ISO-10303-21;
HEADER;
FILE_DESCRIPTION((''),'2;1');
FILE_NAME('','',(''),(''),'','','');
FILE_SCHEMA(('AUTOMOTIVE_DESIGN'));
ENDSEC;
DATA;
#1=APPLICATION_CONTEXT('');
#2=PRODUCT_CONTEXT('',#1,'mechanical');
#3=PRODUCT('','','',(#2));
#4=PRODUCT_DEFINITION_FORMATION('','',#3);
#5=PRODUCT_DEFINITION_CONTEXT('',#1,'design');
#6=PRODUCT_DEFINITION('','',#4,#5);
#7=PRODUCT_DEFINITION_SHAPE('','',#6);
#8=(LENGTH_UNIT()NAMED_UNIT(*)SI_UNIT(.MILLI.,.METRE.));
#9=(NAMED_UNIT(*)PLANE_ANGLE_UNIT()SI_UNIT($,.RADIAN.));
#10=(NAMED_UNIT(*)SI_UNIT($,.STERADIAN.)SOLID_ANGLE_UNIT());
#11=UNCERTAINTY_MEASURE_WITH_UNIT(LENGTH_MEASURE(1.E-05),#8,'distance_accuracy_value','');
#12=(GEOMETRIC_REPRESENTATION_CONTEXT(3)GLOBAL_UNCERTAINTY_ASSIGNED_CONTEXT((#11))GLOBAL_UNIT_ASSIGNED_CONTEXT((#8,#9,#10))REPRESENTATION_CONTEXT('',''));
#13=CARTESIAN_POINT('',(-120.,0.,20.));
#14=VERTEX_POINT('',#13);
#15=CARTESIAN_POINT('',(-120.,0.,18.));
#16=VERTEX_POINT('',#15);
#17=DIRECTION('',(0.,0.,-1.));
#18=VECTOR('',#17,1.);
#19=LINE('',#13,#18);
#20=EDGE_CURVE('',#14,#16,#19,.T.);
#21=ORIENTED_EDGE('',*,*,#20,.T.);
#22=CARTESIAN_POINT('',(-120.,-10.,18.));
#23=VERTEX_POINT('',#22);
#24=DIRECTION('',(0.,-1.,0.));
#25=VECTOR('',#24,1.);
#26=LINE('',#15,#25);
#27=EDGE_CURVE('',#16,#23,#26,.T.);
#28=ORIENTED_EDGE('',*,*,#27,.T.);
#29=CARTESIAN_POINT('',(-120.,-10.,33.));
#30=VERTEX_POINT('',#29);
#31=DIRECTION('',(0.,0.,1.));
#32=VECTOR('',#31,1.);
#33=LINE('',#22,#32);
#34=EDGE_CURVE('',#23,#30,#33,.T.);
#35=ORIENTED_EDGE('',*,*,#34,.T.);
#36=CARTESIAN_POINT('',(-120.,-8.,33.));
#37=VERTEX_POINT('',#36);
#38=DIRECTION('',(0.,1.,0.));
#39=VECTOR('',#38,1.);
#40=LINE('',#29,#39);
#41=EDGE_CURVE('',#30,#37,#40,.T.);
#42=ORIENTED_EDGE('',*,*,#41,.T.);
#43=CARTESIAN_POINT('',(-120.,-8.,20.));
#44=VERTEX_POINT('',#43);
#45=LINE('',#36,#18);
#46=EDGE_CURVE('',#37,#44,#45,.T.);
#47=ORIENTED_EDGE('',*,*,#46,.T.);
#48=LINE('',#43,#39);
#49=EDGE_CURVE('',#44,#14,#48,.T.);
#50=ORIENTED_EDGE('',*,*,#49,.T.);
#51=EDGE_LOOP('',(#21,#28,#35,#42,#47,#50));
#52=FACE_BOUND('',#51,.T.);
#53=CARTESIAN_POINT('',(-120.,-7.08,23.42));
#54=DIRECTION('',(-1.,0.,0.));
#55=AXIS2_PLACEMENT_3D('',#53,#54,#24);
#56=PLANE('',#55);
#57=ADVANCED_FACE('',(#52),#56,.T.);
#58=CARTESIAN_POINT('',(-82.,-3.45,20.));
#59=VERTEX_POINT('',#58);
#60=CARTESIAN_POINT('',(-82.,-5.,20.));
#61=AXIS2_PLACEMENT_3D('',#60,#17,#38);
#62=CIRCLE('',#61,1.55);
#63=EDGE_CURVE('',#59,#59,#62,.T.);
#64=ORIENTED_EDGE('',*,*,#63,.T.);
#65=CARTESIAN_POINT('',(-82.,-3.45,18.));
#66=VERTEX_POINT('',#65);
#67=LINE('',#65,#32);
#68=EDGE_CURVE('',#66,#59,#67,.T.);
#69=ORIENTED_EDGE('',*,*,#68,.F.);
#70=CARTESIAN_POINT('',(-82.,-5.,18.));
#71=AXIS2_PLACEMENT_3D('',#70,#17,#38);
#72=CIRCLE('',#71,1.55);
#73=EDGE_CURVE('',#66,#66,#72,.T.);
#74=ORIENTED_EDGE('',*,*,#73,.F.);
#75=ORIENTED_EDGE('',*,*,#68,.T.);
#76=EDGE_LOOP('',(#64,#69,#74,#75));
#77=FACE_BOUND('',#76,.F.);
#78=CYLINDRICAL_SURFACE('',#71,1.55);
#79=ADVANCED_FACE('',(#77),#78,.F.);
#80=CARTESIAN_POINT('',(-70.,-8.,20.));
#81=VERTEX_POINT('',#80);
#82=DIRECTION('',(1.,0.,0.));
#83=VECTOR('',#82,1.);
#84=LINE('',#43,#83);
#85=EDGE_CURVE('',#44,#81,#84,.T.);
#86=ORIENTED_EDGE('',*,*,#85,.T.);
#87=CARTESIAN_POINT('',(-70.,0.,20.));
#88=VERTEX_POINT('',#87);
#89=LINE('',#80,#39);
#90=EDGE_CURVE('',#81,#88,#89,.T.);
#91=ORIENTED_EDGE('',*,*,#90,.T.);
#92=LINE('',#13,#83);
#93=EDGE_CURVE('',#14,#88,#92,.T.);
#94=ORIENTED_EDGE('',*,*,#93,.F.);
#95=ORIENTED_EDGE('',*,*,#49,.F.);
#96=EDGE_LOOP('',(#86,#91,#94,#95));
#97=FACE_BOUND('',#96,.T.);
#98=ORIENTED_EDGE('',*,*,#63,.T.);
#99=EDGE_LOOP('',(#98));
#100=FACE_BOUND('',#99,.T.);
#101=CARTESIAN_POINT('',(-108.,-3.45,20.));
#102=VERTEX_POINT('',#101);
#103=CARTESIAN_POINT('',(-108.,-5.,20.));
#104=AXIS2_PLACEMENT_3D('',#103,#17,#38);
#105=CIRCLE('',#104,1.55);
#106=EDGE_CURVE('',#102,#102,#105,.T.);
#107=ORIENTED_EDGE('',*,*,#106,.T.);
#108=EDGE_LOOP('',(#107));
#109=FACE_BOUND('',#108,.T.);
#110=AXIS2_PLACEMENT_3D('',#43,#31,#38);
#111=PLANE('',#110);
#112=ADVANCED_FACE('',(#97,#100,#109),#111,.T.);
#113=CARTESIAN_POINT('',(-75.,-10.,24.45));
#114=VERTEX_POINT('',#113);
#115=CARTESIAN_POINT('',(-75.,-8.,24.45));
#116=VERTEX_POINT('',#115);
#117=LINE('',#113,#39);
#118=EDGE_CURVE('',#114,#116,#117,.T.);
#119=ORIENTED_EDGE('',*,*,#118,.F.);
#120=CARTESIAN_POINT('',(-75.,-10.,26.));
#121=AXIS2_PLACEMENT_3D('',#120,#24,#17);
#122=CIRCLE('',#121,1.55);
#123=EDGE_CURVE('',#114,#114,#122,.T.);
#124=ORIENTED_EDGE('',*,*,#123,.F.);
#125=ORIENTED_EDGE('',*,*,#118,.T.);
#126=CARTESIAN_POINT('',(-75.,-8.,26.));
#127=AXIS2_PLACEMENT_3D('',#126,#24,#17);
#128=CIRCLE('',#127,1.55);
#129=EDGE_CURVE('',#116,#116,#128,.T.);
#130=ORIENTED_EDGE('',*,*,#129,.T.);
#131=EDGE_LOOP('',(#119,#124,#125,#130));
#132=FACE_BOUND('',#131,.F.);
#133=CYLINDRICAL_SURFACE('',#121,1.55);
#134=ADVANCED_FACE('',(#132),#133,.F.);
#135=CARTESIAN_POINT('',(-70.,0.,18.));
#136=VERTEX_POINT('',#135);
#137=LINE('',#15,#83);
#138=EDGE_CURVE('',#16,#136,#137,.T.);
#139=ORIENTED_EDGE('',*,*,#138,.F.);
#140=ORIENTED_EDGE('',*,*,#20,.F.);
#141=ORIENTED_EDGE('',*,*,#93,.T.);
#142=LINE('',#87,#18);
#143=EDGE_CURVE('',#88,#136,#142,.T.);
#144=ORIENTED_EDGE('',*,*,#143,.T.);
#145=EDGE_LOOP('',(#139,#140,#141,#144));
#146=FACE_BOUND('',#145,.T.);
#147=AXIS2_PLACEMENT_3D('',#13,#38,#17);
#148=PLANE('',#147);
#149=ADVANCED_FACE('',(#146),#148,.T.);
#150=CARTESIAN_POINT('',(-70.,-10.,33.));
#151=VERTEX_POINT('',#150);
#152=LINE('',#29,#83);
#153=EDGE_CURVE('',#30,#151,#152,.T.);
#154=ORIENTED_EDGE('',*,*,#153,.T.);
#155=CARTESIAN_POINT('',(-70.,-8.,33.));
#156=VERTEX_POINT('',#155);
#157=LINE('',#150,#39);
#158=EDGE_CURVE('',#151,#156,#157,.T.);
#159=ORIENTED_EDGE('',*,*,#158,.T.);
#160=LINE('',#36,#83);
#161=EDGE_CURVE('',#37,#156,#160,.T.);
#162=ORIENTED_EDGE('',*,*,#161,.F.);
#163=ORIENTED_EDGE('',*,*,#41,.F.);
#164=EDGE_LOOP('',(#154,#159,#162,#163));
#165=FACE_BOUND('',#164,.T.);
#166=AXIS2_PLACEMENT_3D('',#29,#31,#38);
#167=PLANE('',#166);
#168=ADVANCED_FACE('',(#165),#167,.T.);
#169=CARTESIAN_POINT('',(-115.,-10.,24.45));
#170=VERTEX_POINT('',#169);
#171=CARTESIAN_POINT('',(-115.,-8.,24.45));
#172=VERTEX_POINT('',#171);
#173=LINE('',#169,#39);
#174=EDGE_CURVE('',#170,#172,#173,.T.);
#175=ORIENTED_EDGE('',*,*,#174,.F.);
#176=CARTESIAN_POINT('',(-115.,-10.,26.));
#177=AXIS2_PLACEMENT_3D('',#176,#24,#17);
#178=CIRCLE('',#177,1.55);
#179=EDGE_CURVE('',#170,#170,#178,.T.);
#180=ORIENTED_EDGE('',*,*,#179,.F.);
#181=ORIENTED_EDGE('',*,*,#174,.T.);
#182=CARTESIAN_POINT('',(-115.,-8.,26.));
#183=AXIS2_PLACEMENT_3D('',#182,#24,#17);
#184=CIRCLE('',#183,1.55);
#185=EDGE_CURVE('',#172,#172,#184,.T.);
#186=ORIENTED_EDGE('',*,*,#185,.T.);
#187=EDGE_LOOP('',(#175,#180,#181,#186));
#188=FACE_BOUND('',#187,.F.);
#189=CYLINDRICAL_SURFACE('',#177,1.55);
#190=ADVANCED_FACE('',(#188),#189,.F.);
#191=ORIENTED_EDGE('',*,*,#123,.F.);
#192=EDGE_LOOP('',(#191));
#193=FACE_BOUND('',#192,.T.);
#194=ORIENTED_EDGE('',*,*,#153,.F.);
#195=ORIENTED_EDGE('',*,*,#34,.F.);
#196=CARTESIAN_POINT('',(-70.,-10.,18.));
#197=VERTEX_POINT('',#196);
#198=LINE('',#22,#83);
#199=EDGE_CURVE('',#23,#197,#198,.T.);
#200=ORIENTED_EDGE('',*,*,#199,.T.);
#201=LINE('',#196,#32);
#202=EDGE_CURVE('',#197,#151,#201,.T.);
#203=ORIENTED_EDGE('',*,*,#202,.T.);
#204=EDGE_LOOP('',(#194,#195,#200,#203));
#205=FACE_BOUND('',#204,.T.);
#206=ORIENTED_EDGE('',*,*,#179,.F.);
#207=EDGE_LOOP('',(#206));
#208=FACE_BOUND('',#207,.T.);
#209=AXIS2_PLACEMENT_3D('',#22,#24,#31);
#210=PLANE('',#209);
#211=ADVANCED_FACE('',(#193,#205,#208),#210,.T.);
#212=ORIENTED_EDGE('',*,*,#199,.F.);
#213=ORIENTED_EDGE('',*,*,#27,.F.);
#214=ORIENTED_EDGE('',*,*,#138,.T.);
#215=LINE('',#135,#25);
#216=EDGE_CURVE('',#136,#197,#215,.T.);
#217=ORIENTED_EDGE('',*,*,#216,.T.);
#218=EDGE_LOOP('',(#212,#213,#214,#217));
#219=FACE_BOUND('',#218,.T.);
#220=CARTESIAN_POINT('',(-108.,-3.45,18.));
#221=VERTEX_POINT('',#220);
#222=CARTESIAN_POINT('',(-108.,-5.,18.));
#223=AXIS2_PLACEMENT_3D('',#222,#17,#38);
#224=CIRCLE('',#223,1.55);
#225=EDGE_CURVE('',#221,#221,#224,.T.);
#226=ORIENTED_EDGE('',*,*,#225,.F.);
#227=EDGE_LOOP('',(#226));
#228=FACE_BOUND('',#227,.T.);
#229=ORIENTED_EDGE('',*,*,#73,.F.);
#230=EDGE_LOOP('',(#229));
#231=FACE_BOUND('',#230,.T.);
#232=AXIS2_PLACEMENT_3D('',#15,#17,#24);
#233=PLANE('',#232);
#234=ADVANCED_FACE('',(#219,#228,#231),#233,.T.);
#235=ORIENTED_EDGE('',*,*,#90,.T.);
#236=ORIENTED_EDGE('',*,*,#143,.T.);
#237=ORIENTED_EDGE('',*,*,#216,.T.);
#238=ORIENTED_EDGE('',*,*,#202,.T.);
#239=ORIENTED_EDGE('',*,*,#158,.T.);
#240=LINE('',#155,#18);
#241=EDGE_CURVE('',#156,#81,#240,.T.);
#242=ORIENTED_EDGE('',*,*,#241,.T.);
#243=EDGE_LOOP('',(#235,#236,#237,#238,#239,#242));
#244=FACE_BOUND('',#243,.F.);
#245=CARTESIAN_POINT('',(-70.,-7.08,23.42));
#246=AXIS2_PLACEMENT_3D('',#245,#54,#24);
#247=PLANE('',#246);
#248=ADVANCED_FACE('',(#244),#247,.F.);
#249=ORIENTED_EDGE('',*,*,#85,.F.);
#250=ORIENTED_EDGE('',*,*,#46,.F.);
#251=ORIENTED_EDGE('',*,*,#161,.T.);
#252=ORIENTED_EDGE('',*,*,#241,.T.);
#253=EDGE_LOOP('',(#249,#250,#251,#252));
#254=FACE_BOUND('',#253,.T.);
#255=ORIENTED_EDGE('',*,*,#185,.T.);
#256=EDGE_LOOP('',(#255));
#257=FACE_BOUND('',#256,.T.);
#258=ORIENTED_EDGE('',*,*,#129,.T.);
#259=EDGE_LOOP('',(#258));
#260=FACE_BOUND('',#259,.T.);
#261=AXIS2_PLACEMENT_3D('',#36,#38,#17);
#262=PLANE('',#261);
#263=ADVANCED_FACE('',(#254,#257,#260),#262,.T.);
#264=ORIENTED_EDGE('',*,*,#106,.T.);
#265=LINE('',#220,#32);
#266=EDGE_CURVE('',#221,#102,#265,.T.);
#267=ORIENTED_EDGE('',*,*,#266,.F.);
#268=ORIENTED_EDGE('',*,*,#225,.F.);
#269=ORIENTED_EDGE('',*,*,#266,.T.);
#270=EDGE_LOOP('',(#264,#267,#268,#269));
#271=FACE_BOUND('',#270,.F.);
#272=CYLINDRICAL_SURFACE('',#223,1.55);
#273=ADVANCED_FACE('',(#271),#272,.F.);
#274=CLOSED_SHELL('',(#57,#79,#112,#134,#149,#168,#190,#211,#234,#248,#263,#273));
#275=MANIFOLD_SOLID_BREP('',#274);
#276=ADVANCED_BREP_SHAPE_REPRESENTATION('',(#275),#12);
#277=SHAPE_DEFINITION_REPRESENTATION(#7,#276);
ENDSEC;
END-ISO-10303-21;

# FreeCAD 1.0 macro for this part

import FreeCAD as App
import Part
import Sketcher

V = App.Vector

doc = App.newDocument("Part")
body = doc.addObject("PartDesign::Body", "Body")

# Sketch on YZ plane
sketch1 = doc.addObject("Sketcher::SketchObject", "Sketch")
body.addObject(sketch1)
sketch1.AttachmentSupport = (doc.YZ_Plane, [""])
sketch1.MapMode = "FlatFace"
sketch1.addGeometry([
    Part.LineSegment(V(0, 15, 0), V(0, 0, 0)),  # 0
    Part.LineSegment(V(0, 0, 0), V(10, 0, 0)),  # 1
    Part.LineSegment(V(10, 0, 0), V(10, 2, 0)),  # 2
    Part.LineSegment(V(10, 2, 0), V(2, 2, 0)),  # 3
    Part.LineSegment(V(2, 2, 0), V(2, 15, 0)),  # 4
    Part.LineSegment(V(2, 15, 0), V(0, 15, 0)),  # 5
], False)
sketch1.addConstraint([
    Sketcher.Constraint("Coincident", 0, 2, 1, 1),
    Sketcher.Constraint("Coincident", 1, 2, 2, 1),
    Sketcher.Constraint("Coincident", 2, 2, 3, 1),
    Sketcher.Constraint("Coincident", 3, 2, 4, 1),
    Sketcher.Constraint("Coincident", 4, 2, 5, 1),
    Sketcher.Constraint("Coincident", 5, 2, 0, 1),
    Sketcher.Constraint("Vertical", 0),
    Sketcher.Constraint("Horizontal", 1),
    Sketcher.Constraint("Vertical", 2),
    Sketcher.Constraint("Horizontal", 3),
    Sketcher.Constraint("Vertical", 4),
    Sketcher.Constraint("Horizontal", 5),
    Sketcher.Constraint("Coincident", 0, 2, -1, 1),
    Sketcher.Constraint("Equal", 5, 2),
    Sketcher.Constraint("DistanceX", 1, 1, 1, 2, 10.0),
    Sketcher.Constraint("DistanceX", 3, 2, 3, 1, 8.0),
    Sketcher.Constraint("DistanceY", 0, 2, 0, 1, 15.0),
])
pad1 = doc.addObject("PartDesign::Pad", "Pad")
body.addObject(pad1)
pad1.Profile = sketch1
pad1.Length = 50

# Sketch on XY plane
sketch2 = doc.addObject("Sketcher::SketchObject", "Sketch001")
body.addObject(sketch2)
sketch2.AttachmentSupport = (doc.XY_Plane, [""])
sketch2.MapMode = "FlatFace"
sketch2.addGeometry([
    Part.Circle(V(38, 5, 0), V(0, 0, 1), 1.6),
    Part.Circle(V(12, 5, 0), V(0, 0, 1), 1.6),
], False)
sketch2.addConstraint([
    Sketcher.Constraint("Equal", 0, 1),
    Sketcher.Constraint("Horizontal", 0, 3, 1, 3),
    Sketcher.Constraint("Diameter", 0, 3.1),
    Sketcher.Constraint("DistanceX", -1, 1, 0, 3, 38.0),
    Sketcher.Constraint("DistanceY", -1, 1, 0, 3, 5.0),
    Sketcher.Constraint("DistanceX", -1, 1, 1, 3, 12.0),
])
pocket1 = doc.addObject("PartDesign::Pocket", "Pocket")
body.addObject(pocket1)
pocket1.Profile = sketch2
pocket1.Type = "ThroughAll"
pocket1.Reversed = True

# Sketch on XZ plane
sketch3 = doc.addObject("Sketcher::SketchObject", "Sketch002")
body.addObject(sketch3)
sketch3.AttachmentSupport = (doc.XZ_Plane, [""])
sketch3.MapMode = "FlatFace"
sketch3.addGeometry([
    Part.Circle(V(45, 8, 0), V(0, 0, 1), 1.6),
    Part.Circle(V(5, 8, 0), V(0, 0, 1), 1.6),
], False)
sketch3.addConstraint([
    Sketcher.Constraint("Equal", 0, 1),
    Sketcher.Constraint("Horizontal", 0, 3, 1, 3),
    Sketcher.Constraint("Diameter", 0, 3.1),
    Sketcher.Constraint("DistanceX", -1, 1, 0, 3, 45.0),
    Sketcher.Constraint("DistanceY", -1, 1, 0, 3, 8.0),
    Sketcher.Constraint("DistanceX", -1, 1, 1, 3, 5.0),
])
pocket2 = doc.addObject("PartDesign::Pocket", "Pocket001")
body.addObject(pocket2)
pocket2.Profile = sketch3
pocket2.Type = "ThroughAll"
body2 = doc.addObject("PartDesign::Body", "Body001")
doc.recompute()

body.Placement = App.Placement(V(-120, -10, 18), App.Rotation(V(0, 0, 1), 0))
boolean = doc.addObject("PartDesign::Boolean", "Boolean")
body2.addObject(boolean)
boolean.Type = "Fuse"
boolean.addObjects([body])

doc.recompute()
